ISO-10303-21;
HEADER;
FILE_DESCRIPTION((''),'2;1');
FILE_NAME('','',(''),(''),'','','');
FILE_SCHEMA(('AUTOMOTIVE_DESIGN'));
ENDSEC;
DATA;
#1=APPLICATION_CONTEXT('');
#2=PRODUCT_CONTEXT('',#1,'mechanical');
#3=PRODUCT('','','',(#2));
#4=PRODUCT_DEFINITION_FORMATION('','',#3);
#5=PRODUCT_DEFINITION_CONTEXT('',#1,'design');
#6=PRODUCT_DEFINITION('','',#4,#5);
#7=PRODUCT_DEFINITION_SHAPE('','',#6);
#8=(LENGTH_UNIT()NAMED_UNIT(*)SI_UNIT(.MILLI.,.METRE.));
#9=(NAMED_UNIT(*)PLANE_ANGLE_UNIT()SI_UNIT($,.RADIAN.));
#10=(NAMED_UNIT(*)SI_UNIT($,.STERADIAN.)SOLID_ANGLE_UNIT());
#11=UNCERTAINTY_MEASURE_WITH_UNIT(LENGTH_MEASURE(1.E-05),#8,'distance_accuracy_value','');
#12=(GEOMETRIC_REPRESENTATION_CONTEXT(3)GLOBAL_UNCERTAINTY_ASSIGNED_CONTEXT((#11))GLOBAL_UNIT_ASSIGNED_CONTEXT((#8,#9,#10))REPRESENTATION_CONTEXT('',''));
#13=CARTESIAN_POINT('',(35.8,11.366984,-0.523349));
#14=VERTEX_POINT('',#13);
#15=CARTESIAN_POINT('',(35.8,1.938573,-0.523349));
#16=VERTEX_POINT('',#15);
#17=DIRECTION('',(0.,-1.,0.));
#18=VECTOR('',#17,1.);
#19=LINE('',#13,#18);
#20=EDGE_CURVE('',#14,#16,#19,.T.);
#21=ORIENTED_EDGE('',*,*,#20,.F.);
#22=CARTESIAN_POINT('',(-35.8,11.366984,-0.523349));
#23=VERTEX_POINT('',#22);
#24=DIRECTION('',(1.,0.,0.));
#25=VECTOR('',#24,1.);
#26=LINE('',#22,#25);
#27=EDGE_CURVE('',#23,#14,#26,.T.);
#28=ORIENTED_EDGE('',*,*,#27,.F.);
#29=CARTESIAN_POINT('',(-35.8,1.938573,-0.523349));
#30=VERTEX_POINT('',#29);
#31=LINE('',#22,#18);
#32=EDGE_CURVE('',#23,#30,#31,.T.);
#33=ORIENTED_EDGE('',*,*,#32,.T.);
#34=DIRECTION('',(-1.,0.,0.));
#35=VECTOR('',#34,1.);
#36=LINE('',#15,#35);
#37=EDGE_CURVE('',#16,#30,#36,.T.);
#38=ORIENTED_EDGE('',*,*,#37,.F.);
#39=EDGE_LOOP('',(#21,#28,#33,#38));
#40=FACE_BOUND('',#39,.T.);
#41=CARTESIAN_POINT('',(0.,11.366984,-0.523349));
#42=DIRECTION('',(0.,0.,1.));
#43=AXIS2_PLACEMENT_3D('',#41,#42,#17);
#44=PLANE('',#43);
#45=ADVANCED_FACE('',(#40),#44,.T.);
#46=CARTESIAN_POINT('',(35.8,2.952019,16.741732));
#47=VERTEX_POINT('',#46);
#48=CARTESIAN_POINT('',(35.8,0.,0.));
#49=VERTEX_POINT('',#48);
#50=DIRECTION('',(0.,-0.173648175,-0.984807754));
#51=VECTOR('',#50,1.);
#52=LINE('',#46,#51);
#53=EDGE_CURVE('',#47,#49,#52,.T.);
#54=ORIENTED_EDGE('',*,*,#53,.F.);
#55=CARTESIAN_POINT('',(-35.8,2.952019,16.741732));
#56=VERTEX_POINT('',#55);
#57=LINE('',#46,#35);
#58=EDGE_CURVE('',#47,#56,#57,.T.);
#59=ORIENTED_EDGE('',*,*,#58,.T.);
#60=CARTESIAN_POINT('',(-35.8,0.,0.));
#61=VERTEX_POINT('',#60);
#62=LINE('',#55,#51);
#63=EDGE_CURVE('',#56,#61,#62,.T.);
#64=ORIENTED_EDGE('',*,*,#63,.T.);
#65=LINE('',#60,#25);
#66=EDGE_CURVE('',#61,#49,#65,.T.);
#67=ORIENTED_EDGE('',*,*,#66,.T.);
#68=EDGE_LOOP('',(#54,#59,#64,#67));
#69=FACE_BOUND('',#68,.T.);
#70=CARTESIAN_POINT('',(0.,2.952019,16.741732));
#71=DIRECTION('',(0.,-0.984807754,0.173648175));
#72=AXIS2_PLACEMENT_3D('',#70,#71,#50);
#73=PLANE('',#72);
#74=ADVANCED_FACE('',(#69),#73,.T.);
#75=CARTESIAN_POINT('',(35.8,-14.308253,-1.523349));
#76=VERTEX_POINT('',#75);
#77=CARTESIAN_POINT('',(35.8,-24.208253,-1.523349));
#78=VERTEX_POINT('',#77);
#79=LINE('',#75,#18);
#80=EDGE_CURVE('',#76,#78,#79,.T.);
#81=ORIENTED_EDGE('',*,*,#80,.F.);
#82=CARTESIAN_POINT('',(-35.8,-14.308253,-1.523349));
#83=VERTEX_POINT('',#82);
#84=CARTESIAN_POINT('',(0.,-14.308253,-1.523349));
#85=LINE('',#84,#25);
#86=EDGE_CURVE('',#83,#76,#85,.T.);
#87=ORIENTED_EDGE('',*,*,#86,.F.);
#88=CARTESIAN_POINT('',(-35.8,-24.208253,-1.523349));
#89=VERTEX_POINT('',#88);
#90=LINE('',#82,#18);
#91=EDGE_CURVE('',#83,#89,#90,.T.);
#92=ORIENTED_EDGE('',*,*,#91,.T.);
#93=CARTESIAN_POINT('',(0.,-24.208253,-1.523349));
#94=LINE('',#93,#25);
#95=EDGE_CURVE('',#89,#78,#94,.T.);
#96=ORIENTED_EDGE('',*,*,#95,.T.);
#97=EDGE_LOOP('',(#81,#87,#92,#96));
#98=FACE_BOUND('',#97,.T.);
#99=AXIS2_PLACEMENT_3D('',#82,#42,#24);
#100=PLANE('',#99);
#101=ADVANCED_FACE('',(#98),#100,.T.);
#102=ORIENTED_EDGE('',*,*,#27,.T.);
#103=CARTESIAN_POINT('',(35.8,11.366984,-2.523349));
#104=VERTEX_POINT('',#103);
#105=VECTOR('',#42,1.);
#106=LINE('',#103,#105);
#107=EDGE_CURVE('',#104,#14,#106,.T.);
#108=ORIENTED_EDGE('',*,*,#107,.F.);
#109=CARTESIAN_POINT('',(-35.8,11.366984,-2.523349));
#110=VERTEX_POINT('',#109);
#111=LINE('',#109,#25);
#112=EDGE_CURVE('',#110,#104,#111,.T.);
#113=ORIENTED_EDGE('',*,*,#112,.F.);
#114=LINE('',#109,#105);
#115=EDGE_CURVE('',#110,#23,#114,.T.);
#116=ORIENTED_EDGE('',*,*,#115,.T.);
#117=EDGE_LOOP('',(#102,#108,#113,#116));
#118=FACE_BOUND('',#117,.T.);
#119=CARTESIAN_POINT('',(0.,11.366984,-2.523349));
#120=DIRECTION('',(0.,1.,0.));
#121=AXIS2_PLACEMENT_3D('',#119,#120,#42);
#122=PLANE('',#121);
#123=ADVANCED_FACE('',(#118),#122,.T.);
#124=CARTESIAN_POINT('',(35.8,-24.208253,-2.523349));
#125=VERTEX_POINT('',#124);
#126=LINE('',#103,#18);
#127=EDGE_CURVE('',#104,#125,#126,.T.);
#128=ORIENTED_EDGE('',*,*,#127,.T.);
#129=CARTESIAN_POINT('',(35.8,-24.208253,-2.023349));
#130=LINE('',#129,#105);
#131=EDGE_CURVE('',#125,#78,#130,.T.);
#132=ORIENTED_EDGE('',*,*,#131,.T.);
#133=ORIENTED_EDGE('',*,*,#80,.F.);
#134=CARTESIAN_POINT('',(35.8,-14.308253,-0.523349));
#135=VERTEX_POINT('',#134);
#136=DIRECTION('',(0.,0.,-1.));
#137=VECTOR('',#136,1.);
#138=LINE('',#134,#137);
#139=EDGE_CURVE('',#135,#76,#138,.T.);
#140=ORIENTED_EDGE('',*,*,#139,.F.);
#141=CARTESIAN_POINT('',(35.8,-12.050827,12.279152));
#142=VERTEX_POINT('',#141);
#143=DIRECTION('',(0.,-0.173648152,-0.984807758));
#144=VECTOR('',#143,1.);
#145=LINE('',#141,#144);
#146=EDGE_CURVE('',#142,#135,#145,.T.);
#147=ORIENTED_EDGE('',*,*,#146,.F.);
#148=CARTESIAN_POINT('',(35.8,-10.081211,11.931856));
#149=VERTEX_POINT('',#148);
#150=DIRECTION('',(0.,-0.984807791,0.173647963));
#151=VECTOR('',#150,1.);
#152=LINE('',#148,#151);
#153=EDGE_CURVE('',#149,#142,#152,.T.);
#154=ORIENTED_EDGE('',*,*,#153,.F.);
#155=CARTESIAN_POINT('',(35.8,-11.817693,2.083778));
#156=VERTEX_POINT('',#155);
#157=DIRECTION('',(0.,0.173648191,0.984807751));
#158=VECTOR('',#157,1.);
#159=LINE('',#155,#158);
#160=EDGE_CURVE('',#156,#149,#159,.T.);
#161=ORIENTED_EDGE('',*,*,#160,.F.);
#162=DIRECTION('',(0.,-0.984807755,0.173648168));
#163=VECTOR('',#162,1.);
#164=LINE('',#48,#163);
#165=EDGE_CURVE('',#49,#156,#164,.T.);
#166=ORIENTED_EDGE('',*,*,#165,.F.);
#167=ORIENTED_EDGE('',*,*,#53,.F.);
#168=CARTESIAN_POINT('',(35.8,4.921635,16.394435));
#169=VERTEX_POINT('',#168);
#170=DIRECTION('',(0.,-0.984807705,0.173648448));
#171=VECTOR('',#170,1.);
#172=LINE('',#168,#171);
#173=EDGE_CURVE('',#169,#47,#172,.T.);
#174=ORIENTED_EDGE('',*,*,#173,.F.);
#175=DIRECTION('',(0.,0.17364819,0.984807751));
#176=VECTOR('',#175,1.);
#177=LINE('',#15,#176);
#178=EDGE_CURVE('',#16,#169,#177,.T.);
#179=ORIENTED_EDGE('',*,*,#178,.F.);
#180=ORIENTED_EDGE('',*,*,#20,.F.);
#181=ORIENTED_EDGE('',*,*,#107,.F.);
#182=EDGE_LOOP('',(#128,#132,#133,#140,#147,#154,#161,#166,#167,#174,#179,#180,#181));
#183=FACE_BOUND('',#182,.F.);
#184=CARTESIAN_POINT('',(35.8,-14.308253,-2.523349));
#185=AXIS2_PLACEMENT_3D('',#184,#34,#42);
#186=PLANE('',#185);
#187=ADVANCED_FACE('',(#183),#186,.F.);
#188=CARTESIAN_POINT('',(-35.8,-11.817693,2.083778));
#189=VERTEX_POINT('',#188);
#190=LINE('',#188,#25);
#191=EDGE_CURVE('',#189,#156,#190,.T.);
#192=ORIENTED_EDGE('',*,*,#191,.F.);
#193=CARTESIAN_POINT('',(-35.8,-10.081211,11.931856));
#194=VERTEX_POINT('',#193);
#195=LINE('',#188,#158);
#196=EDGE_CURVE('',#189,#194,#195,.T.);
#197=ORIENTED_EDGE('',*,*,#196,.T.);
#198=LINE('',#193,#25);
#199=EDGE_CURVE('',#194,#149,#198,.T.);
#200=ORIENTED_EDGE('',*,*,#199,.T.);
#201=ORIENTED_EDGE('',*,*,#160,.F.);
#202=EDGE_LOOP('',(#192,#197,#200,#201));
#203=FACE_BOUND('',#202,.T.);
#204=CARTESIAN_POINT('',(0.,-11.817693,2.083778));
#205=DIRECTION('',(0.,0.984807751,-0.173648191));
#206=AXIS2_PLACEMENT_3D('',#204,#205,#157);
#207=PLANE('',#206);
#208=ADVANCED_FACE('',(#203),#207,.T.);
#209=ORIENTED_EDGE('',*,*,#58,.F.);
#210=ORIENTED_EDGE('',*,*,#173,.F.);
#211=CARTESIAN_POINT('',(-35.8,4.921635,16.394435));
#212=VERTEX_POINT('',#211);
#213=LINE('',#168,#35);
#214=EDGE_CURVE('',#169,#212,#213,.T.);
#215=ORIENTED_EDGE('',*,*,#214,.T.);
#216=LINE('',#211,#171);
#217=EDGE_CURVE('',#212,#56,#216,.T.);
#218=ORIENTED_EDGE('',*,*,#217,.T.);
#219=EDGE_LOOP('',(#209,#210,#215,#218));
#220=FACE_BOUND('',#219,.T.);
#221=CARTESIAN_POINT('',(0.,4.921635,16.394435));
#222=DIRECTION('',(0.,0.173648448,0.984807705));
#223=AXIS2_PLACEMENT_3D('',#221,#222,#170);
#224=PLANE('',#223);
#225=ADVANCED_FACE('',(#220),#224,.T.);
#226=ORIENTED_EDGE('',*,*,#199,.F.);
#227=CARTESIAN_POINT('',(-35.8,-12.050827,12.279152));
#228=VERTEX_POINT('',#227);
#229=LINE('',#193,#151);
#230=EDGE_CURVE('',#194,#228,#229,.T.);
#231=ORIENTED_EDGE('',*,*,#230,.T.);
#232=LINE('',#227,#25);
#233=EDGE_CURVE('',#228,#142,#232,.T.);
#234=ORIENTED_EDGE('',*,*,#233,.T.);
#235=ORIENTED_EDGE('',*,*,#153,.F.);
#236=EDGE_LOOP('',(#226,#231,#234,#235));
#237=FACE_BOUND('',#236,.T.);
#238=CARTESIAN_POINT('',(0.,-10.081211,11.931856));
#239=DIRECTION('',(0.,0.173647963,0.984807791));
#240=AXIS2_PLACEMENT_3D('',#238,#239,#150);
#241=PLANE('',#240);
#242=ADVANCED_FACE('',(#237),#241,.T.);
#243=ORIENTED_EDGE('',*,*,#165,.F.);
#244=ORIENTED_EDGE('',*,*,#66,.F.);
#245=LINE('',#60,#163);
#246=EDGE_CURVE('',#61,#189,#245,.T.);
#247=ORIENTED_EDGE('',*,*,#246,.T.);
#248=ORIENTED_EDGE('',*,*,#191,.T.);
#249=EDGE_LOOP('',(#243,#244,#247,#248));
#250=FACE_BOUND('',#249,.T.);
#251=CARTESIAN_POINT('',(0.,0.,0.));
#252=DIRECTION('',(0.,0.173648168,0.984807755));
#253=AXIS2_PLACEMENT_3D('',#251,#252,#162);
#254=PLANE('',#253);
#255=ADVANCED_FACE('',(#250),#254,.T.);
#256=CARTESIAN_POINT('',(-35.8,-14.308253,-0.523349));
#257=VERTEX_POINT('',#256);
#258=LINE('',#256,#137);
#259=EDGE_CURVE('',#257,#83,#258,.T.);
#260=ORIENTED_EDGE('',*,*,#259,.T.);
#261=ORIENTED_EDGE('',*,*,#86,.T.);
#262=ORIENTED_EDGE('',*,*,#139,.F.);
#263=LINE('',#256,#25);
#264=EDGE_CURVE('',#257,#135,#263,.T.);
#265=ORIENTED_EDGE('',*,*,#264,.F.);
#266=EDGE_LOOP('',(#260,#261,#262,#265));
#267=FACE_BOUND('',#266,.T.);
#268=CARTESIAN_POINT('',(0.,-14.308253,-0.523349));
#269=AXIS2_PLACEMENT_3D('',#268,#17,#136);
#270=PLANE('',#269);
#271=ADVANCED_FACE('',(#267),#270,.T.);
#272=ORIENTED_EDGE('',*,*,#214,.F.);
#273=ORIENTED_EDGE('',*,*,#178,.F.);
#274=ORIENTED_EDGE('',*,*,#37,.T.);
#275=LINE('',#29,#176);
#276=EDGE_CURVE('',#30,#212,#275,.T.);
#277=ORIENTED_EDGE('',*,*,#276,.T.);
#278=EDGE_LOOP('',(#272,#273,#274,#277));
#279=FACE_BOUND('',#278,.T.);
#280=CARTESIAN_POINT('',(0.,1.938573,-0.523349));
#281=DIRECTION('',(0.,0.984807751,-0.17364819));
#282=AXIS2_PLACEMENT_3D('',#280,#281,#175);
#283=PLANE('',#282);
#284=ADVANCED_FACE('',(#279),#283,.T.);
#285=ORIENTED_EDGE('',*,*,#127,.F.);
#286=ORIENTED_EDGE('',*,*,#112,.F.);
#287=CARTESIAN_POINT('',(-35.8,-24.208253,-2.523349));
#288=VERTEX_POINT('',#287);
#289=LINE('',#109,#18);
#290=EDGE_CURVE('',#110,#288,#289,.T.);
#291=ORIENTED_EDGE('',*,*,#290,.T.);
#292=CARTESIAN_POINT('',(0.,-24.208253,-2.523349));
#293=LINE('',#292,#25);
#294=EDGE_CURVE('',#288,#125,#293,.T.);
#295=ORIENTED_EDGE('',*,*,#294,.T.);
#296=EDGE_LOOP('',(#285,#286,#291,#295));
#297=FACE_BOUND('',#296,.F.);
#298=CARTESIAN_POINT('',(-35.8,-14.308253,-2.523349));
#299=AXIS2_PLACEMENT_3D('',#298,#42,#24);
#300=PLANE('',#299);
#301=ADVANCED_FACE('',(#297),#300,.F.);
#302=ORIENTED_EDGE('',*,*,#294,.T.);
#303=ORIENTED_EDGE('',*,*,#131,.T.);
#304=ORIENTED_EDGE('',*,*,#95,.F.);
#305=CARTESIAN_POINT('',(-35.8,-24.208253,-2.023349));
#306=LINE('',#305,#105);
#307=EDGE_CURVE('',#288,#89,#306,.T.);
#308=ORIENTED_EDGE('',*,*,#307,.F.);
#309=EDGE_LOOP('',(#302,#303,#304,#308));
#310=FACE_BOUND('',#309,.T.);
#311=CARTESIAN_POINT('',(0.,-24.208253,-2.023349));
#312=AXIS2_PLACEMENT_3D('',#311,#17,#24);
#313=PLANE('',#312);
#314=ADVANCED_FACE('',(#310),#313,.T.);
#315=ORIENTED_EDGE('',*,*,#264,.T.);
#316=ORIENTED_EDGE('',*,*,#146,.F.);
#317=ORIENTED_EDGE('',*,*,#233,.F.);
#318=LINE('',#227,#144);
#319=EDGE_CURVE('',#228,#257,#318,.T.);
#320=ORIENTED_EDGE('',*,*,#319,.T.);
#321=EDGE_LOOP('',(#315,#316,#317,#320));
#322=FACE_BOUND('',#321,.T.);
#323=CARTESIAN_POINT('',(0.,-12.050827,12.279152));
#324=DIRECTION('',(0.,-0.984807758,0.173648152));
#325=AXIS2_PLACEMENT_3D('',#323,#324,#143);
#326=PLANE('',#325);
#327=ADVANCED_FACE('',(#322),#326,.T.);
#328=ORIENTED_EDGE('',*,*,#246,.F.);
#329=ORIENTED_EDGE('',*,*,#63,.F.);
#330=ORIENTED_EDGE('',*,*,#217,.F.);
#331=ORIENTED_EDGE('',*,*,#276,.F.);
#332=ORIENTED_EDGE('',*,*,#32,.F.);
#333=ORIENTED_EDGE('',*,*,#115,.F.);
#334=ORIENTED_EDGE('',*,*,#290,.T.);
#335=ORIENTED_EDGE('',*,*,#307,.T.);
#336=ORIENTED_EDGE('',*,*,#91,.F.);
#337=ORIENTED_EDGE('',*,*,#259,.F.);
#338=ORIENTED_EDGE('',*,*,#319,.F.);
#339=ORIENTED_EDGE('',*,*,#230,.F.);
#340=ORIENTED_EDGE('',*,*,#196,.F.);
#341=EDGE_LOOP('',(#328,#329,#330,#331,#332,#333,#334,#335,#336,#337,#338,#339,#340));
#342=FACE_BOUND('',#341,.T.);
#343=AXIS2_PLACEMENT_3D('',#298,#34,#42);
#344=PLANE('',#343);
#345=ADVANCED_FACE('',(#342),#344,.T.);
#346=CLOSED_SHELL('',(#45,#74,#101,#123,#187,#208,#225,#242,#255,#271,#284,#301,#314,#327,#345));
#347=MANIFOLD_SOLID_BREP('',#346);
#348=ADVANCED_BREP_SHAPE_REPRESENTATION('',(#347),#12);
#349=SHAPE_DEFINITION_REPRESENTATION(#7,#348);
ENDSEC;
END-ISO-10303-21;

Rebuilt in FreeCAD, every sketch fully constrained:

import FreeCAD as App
import Part
import Sketcher

V = App.Vector
Q = App.Units.Quantity

doc = App.newDocument("Part")
body = doc.addObject("PartDesign::Body", "Body")

sketch1 = body.newObject("Sketcher::SketchObject", "Sketch")
sketch1.AttachmentSupport = (doc.getObject("YZ_Plane"), [""])
sketch1.MapMode = "FlatFace"
sketch1.addGeometry([
    Part.LineSegment(V(2.952019, 16.741732, 0), V(0, 0, 0)),
    Part.LineSegment(V(0, 0, 0), V(-11.817693, 2.083778, 0)),
    Part.LineSegment(V(-11.817693, 2.083778, 0), V(-10.081211, 11.931856, 0)),
    Part.LineSegment(V(-10.081211, 11.931856, 0), V(-12.050827, 12.279152, 0)),
    Part.LineSegment(V(-12.050827, 12.279152, 0), V(-14.308253, -0.523349, 0)),
    Part.LineSegment(V(-14.308253, -0.523349, 0), V(-14.308253, -2.523349, 0)),
    Part.LineSegment(V(-14.308253, -2.523349, 0), V(11.366984, -2.523349, 0)),
    Part.LineSegment(V(11.366984, -2.523349, 0), V(11.366984, -0.523349, 0)),
    Part.LineSegment(V(11.366984, -0.523349, 0), V(1.938573, -0.523349, 0)),
    Part.LineSegment(V(1.938573, -0.523349, 0), V(4.921635, 16.394435, 0)),
    Part.LineSegment(V(4.921635, 16.394435, 0), V(2.952019, 16.741732, 0)),
], False)
sketch1.addConstraint([
    Sketcher.Constraint("Coincident", 0, 2, 1, 1),
    Sketcher.Constraint("Coincident", 1, 2, 2, 1),
    Sketcher.Constraint("Coincident", 2, 2, 3, 1),
    Sketcher.Constraint("Coincident", 3, 2, 4, 1),
    Sketcher.Constraint("Coincident", 4, 2, 5, 1),
    Sketcher.Constraint("Coincident", 5, 2, 6, 1),
    Sketcher.Constraint("Coincident", 6, 2, 7, 1),
    Sketcher.Constraint("Coincident", 7, 2, 8, 1),
    Sketcher.Constraint("Coincident", 8, 2, 9, 1),
    Sketcher.Constraint("Coincident", 9, 2, 10, 1),
    Sketcher.Constraint("Coincident", 10, 2, 0, 1),
    Sketcher.Constraint("Vertical", 5),
    Sketcher.Constraint("Horizontal", 6),
    Sketcher.Constraint("Vertical", 7),
    Sketcher.Constraint("Horizontal", 8),
    Sketcher.Constraint("Coincident", 0, 2, -1, 1),
    Sketcher.Constraint("Perpendicular", 0, 1),
    Sketcher.Constraint("Perpendicular", 1, 2),
    Sketcher.Constraint("Perpendicular", 2, 3),
    Sketcher.Constraint("Perpendicular", 3, 4),
    Sketcher.Constraint("Parallel", 4, 9),
    Sketcher.Constraint("Perpendicular", 9, 10),
    Sketcher.Constraint("Horizontal", 4, 2, 7, 2),
    Sketcher.Constraint("Equal", 3, 10),
    Sketcher.Constraint("DistanceY", 5, 2, 5, 1, 2.0),
    Sketcher.Constraint("Angle", 0, Q("-100 deg")),
    Sketcher.Constraint("Distance", 0, 17.0),
    Sketcher.Constraint("Distance", 1, 12.0),
    Sketcher.Constraint("Distance", 2, 10.000001),
    Sketcher.Constraint("Distance", 3, 2.0),
    Sketcher.Constraint("Distance", 4, 13.0),
    Sketcher.Constraint("DistanceX", 8, 2, 8, 1, 9.428411),
])
pad1 = body.newObject("PartDesign::Pad", "Pad")
pad1.Profile = sketch1
pad1.Length = 71.6
pad1.Midplane = True

sketch2 = body.newObject("Sketcher::SketchObject", "Sketch001")
sketch2.AttachmentSupport = (doc.getObject("XZ_Plane"), [""])
sketch2.MapMode = "FlatFace"
sketch2.AttachmentOffset = App.Placement(V(0, 0, 14.308253), App.Rotation())
sketch2.addGeometry([
    Part.LineSegment(V(-35.8, -1.523349, 0), V(-35.8, -2.523349, 0)),
    Part.LineSegment(V(-35.8, -2.523349, 0), V(35.8, -2.523349, 0)),
    Part.LineSegment(V(35.8, -2.523349, 0), V(35.8, -1.523349, 0)),
    Part.LineSegment(V(35.8, -1.523349, 0), V(-35.8, -1.523349, 0)),
], False)
sketch2.addConstraint([
    Sketcher.Constraint("Coincident", 0, 2, 1, 1),
    Sketcher.Constraint("Coincident", 1, 2, 2, 1),
    Sketcher.Constraint("Coincident", 2, 2, 3, 1),
    Sketcher.Constraint("Coincident", 3, 2, 0, 1),
    Sketcher.Constraint("Vertical", 0),
    Sketcher.Constraint("Horizontal", 1),
    Sketcher.Constraint("Vertical", 2),
    Sketcher.Constraint("Horizontal", 3),
    Sketcher.Constraint("DistanceY", 0, 2, 0, 1, 1.0),
    Sketcher.Constraint("DistanceX", 1, 1, 1, 2, 71.6),
    Sketcher.Constraint("DistanceX", 0, 2, -1, 1, 35.8),
    Sketcher.Constraint("DistanceY", 0, 2, -1, 1, 2.523349),
])
pad2 = body.newObject("PartDesign::Pad", "Pad001")
pad2.Profile = sketch2
pad2.Length = 9.9

doc.recompute()
